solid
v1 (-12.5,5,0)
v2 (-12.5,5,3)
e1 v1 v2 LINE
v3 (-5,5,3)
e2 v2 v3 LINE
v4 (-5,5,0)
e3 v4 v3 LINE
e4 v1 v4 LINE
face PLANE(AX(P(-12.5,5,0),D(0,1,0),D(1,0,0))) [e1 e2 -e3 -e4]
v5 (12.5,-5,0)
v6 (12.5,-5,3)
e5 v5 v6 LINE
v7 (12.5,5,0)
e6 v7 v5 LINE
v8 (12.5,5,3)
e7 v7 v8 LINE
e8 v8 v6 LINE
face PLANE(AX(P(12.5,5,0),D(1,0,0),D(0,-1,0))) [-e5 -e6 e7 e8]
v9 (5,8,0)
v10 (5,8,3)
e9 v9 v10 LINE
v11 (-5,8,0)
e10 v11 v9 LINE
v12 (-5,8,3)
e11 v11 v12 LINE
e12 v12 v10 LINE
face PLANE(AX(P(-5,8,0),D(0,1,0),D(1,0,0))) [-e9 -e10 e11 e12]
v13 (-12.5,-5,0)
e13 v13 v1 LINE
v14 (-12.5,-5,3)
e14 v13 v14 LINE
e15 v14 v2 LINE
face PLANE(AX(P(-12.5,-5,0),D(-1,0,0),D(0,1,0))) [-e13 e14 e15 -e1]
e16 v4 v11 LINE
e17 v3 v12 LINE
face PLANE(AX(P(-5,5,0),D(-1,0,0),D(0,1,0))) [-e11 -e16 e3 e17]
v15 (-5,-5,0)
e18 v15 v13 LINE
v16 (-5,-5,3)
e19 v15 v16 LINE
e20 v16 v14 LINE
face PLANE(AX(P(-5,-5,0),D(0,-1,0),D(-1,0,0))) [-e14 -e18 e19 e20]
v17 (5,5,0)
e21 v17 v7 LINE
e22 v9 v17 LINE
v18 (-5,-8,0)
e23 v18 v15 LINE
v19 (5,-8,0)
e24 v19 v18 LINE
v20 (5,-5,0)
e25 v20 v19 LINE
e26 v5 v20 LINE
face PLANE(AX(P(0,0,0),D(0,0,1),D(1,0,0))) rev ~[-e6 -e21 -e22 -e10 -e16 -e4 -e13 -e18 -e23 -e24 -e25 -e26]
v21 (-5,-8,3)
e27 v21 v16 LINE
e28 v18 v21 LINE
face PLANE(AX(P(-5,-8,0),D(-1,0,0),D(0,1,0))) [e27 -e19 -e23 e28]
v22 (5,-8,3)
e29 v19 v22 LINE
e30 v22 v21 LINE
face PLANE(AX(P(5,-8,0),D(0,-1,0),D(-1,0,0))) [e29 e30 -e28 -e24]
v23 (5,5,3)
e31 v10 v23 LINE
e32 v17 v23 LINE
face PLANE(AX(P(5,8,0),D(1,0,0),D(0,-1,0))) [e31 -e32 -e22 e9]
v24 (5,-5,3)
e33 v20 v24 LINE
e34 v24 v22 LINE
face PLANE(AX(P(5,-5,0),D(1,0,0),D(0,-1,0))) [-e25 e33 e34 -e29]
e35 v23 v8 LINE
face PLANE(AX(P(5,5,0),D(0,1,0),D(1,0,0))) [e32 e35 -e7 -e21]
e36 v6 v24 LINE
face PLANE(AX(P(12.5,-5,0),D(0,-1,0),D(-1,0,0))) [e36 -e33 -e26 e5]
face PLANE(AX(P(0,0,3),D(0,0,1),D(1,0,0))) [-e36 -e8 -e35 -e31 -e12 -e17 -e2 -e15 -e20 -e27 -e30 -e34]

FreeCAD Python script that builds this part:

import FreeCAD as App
import Part
import Sketcher
from FreeCAD import Vector
Q = App.Units.Quantity


def add_polygon(sketch, points):
    """Adds a closed chain of lines whose ends are joined by coincident constraints."""
    first, n = sketch.GeometryCount, len(points)
    for a, b in zip(points, points[1:] + points[:1]):
        sketch.addGeometry(Part.LineSegment(App.Vector(*a, 0), App.Vector(*b, 0)), False)
    for i in range(n):
        sketch.addConstraint(Sketcher.Constraint("Coincident", first + i, 2, first + (i + 1) % n, 1))

doc = App.newDocument("Part")
params = doc.addObject("Spreadsheet::Sheet", "Params")
for row, (alias, value) in enumerate([
    ("sketch1_width", "10 mm"),
    ("sketch1_height", "3 mm"),
    ("sketch1_width2", "7.5 mm"),
    ("pad1_length", "3 mm"),
], start=1):
    params.set(f"A{row}", alias)
    params.set(f"B{row}", "=" + value)
    params.setAlias(f"B{row}", alias)

body = doc.addObject("PartDesign::Body", "Body")

# Sketch on XY plane
sketch1 = doc.addObject("Sketcher::SketchObject", "Sketch")
body.addObject(sketch1)
sketch1.AttachmentSupport = (doc.XY_Plane, [""])
sketch1.MapMode = "FlatFace"
add_polygon(sketch1, [(-12.5, 5), (-12.5, -5), (-5, -5), (-5, -8), (5, -8), (5, -5), (12.5, -5), (12.5, 5), (5, 5), (5, 8), (-5, 8), (-5, 5)])  # lines 0-11
sketch1.addConstraint([
    Sketcher.Constraint("Vertical", 0),
    Sketcher.Constraint("Horizontal", 1),
    Sketcher.Constraint("Vertical", 2),
    Sketcher.Constraint("Horizontal", 3),
    Sketcher.Constraint("Vertical", 4),
    Sketcher.Constraint("Horizontal", 5),
    Sketcher.Constraint("Vertical", 6),
    Sketcher.Constraint("Horizontal", 7),
    Sketcher.Constraint("Vertical", 8),
    Sketcher.Constraint("Horizontal", 9),
    Sketcher.Constraint("Vertical", 10),
    Sketcher.Constraint("Horizontal", 11),
    Sketcher.Constraint("Symmetric", 0, 2, 6, 2, -1, 1),
    Sketcher.Constraint("Symmetric", 2, 2, 8, 2, -1, 1),
    Sketcher.Constraint("Symmetric", 4, 2, 10, 2, -1, 1),
    Sketcher.Constraint("Symmetric", 1, 2, 4, 2, -2),
    Sketcher.Constraint("Equal", 9, 0),
    Sketcher.Constraint("DistanceX", 3, 1, 3, 2, Q("10 mm")),
    Sketcher.Constraint("DistanceY", 2, 2, 2, 1, Q("3 mm")),
    Sketcher.Constraint("DistanceX", 1, 1, 1, 2, Q("7.5 mm")),
])
sketch1.setExpression("Constraints[29]", "Params.sketch1_width")
sketch1.setExpression("Constraints[30]", "Params.sketch1_height")
sketch1.setExpression("Constraints[31]", "Params.sketch1_width2")
pad1 = doc.addObject("PartDesign::Pad", "Pad")
body.addObject(pad1)
pad1.Profile = sketch1
pad1.setExpression("Length", "Params.pad1_length")

doc.recompute()
